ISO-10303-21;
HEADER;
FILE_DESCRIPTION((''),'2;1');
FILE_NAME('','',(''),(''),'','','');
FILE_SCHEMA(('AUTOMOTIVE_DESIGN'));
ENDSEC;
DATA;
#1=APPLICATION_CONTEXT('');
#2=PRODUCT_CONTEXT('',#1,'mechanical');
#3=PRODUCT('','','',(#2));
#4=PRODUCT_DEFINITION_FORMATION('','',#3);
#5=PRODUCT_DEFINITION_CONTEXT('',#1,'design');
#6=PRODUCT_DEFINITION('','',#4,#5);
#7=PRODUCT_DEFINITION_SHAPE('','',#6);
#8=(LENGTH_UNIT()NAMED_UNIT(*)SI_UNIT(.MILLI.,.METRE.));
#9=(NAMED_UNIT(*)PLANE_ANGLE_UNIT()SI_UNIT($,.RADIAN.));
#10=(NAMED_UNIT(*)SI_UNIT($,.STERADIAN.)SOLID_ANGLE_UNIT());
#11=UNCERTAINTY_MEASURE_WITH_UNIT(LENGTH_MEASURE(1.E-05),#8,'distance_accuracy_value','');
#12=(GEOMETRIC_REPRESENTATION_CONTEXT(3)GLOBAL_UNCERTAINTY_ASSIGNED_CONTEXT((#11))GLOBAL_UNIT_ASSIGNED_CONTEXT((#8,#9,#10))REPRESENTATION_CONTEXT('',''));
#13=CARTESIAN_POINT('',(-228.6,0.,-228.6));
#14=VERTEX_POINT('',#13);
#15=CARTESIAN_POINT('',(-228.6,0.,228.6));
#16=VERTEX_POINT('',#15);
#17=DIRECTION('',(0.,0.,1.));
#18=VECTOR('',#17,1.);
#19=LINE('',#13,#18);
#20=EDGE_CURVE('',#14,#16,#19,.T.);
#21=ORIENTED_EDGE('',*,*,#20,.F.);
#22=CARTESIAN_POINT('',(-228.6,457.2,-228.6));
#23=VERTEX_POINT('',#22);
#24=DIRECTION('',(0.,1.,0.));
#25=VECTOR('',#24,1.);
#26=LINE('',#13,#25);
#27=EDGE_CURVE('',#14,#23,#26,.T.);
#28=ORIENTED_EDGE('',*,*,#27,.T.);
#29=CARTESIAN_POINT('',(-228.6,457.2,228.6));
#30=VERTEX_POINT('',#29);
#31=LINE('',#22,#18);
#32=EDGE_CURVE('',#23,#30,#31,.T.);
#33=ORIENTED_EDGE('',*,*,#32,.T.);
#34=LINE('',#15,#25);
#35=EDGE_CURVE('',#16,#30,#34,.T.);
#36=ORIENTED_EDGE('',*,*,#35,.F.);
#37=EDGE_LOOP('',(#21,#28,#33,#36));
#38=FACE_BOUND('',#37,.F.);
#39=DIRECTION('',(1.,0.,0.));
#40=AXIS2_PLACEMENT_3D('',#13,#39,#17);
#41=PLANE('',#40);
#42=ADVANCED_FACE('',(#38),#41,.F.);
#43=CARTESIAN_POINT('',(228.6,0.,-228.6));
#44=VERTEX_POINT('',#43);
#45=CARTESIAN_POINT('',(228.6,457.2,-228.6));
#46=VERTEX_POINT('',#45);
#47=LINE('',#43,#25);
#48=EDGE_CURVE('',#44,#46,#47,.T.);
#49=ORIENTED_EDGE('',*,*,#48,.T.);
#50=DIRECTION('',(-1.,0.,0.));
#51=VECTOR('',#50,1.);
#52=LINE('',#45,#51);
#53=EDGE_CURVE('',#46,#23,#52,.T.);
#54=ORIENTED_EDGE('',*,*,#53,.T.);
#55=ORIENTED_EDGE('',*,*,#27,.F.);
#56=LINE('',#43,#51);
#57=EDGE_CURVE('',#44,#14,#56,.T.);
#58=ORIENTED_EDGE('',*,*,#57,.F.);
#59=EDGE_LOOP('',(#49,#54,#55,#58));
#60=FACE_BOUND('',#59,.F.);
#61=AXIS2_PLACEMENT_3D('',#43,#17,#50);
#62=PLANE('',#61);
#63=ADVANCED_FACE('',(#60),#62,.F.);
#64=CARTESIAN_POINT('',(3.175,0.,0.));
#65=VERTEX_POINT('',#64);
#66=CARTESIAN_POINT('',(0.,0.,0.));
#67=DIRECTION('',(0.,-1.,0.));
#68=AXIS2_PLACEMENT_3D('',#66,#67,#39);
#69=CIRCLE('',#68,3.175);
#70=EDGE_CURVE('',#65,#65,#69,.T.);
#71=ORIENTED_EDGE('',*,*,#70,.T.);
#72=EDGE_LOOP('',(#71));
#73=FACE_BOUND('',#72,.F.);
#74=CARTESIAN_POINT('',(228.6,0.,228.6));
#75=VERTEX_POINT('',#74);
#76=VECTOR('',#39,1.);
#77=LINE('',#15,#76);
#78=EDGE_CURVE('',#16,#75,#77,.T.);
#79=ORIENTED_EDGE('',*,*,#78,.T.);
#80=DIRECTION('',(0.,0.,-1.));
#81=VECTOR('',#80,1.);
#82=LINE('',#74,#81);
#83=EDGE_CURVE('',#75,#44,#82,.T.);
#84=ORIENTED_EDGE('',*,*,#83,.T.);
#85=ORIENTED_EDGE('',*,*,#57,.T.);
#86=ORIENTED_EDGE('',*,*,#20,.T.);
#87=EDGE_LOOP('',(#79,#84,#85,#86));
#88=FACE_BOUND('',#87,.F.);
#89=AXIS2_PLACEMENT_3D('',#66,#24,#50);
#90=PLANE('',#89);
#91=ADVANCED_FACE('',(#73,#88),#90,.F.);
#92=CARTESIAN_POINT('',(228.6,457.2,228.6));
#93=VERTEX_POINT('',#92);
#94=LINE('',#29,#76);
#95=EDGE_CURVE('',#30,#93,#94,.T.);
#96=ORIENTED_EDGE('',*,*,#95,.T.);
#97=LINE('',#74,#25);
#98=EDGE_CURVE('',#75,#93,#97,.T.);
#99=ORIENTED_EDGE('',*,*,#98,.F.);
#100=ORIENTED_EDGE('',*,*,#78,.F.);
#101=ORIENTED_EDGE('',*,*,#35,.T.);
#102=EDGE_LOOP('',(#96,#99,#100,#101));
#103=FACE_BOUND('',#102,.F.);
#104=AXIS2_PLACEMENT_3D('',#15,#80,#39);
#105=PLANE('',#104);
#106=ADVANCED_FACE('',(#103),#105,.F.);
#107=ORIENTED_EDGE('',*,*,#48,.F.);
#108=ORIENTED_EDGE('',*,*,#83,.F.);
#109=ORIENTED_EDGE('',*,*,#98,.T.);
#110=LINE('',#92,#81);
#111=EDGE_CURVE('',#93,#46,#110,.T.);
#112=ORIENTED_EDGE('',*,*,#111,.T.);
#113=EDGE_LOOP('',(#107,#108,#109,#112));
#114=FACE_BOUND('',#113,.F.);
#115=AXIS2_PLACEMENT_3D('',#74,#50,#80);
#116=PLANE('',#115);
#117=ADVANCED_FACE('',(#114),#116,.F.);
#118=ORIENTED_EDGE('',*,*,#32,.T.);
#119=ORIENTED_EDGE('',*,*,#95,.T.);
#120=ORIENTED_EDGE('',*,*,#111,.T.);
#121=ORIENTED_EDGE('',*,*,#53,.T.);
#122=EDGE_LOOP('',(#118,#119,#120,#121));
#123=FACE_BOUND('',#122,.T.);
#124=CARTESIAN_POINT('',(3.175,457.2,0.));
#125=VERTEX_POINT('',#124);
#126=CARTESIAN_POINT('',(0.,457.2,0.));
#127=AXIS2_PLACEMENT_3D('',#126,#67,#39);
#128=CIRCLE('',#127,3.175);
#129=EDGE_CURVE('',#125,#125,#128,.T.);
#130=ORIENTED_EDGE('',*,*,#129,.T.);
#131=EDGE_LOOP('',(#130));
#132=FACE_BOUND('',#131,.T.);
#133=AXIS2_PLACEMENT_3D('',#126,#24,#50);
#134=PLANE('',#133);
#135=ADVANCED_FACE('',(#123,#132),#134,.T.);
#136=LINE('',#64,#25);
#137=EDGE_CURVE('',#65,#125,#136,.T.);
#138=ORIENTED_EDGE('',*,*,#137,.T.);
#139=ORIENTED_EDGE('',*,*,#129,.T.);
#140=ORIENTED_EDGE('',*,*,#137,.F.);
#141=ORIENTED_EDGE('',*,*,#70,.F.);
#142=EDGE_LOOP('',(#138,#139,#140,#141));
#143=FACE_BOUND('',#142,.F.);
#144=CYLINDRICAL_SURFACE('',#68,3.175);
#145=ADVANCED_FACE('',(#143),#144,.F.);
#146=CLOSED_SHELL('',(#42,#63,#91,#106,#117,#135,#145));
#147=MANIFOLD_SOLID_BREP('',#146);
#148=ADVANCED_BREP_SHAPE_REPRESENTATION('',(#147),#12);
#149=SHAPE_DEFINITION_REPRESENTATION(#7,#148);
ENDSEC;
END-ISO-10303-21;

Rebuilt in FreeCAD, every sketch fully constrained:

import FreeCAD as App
import Part
import Sketcher
Q = App.Units.Quantity


def add_polygon(sketch, points):
    """Adds a closed chain of lines whose ends are joined by coincident constraints."""
    first, n = sketch.GeometryCount, len(points)
    for a, b in zip(points, points[1:] + points[:1]):
        sketch.addGeometry(Part.LineSegment(App.Vector(*a, 0), App.Vector(*b, 0)), False)
    for i in range(n):
        sketch.addConstraint(Sketcher.Constraint("Coincident", first + i, 2, first + (i + 1) % n, 1))

doc = App.newDocument("Part")
params = doc.addObject("Spreadsheet::Sheet", "Params")
for row, (alias, value) in enumerate([
    ("sketch1_width", "18 in"),
    ("pad1_length", "18 in"),
    ("sketch2_diameter", "0.25 in"),
], start=1):
    params.set(f"A{row}", alias)
    params.set(f"B{row}", "=" + value)
    params.setAlias(f"B{row}", alias)

body = doc.addObject("PartDesign::Body", "Body")

# Sketch on XZ plane
sketch1 = doc.addObject("Sketcher::SketchObject", "Sketch")
body.addObject(sketch1)
sketch1.AttachmentSupport = (doc.XZ_Plane, [""])
sketch1.MapMode = "FlatFace"
add_polygon(sketch1, [(-229, -229), (-229, 229), (229, 229), (229, -229)])  # lines 0-3
sketch1.addConstraint([
    Sketcher.Constraint("Vertical", 0),
    Sketcher.Constraint("Horizontal", 1),
    Sketcher.Constraint("Vertical", 2),
    Sketcher.Constraint("Horizontal", 3),
    Sketcher.Constraint("Symmetric", 0, 2, 2, 2, -1, 1),
    Sketcher.Constraint("Equal", 3, 0),
    Sketcher.Constraint("DistanceX", 1, 1, 1, 2, Q("18 in")),
])
sketch1.setExpression("Constraints[10]", "Params.sketch1_width")
pad1 = doc.addObject("PartDesign::Pad", "Pad")
body.addObject(pad1)
pad1.Profile = sketch1
pad1.setExpression("Length", "Params.pad1_length")
pad1.Reversed = True

# Sketch on XZ plane
sketch2 = doc.addObject("Sketcher::SketchObject", "Sketch001")
body.addObject(sketch2)
sketch2.AttachmentSupport = (doc.XZ_Plane, [""])
sketch2.MapMode = "FlatFace"
sketch2.addGeometry(Part.Circle(App.Vector(0, 0, 0), App.Vector(0, 0, 1), 3.2), False)
sketch2.addConstraint([
    Sketcher.Constraint("Coincident", 0, 3, -1, 1),
    Sketcher.Constraint("Diameter", 0, Q("0.25 in")),
])
sketch2.setExpression("Constraints[1]", "Params.sketch2_diameter")
pocket1 = doc.addObject("PartDesign::Pocket", "Pocket")
body.addObject(pocket1)
pocket1.Profile = sketch2
pocket1.Type = "ThroughAll"

doc.recompute()
